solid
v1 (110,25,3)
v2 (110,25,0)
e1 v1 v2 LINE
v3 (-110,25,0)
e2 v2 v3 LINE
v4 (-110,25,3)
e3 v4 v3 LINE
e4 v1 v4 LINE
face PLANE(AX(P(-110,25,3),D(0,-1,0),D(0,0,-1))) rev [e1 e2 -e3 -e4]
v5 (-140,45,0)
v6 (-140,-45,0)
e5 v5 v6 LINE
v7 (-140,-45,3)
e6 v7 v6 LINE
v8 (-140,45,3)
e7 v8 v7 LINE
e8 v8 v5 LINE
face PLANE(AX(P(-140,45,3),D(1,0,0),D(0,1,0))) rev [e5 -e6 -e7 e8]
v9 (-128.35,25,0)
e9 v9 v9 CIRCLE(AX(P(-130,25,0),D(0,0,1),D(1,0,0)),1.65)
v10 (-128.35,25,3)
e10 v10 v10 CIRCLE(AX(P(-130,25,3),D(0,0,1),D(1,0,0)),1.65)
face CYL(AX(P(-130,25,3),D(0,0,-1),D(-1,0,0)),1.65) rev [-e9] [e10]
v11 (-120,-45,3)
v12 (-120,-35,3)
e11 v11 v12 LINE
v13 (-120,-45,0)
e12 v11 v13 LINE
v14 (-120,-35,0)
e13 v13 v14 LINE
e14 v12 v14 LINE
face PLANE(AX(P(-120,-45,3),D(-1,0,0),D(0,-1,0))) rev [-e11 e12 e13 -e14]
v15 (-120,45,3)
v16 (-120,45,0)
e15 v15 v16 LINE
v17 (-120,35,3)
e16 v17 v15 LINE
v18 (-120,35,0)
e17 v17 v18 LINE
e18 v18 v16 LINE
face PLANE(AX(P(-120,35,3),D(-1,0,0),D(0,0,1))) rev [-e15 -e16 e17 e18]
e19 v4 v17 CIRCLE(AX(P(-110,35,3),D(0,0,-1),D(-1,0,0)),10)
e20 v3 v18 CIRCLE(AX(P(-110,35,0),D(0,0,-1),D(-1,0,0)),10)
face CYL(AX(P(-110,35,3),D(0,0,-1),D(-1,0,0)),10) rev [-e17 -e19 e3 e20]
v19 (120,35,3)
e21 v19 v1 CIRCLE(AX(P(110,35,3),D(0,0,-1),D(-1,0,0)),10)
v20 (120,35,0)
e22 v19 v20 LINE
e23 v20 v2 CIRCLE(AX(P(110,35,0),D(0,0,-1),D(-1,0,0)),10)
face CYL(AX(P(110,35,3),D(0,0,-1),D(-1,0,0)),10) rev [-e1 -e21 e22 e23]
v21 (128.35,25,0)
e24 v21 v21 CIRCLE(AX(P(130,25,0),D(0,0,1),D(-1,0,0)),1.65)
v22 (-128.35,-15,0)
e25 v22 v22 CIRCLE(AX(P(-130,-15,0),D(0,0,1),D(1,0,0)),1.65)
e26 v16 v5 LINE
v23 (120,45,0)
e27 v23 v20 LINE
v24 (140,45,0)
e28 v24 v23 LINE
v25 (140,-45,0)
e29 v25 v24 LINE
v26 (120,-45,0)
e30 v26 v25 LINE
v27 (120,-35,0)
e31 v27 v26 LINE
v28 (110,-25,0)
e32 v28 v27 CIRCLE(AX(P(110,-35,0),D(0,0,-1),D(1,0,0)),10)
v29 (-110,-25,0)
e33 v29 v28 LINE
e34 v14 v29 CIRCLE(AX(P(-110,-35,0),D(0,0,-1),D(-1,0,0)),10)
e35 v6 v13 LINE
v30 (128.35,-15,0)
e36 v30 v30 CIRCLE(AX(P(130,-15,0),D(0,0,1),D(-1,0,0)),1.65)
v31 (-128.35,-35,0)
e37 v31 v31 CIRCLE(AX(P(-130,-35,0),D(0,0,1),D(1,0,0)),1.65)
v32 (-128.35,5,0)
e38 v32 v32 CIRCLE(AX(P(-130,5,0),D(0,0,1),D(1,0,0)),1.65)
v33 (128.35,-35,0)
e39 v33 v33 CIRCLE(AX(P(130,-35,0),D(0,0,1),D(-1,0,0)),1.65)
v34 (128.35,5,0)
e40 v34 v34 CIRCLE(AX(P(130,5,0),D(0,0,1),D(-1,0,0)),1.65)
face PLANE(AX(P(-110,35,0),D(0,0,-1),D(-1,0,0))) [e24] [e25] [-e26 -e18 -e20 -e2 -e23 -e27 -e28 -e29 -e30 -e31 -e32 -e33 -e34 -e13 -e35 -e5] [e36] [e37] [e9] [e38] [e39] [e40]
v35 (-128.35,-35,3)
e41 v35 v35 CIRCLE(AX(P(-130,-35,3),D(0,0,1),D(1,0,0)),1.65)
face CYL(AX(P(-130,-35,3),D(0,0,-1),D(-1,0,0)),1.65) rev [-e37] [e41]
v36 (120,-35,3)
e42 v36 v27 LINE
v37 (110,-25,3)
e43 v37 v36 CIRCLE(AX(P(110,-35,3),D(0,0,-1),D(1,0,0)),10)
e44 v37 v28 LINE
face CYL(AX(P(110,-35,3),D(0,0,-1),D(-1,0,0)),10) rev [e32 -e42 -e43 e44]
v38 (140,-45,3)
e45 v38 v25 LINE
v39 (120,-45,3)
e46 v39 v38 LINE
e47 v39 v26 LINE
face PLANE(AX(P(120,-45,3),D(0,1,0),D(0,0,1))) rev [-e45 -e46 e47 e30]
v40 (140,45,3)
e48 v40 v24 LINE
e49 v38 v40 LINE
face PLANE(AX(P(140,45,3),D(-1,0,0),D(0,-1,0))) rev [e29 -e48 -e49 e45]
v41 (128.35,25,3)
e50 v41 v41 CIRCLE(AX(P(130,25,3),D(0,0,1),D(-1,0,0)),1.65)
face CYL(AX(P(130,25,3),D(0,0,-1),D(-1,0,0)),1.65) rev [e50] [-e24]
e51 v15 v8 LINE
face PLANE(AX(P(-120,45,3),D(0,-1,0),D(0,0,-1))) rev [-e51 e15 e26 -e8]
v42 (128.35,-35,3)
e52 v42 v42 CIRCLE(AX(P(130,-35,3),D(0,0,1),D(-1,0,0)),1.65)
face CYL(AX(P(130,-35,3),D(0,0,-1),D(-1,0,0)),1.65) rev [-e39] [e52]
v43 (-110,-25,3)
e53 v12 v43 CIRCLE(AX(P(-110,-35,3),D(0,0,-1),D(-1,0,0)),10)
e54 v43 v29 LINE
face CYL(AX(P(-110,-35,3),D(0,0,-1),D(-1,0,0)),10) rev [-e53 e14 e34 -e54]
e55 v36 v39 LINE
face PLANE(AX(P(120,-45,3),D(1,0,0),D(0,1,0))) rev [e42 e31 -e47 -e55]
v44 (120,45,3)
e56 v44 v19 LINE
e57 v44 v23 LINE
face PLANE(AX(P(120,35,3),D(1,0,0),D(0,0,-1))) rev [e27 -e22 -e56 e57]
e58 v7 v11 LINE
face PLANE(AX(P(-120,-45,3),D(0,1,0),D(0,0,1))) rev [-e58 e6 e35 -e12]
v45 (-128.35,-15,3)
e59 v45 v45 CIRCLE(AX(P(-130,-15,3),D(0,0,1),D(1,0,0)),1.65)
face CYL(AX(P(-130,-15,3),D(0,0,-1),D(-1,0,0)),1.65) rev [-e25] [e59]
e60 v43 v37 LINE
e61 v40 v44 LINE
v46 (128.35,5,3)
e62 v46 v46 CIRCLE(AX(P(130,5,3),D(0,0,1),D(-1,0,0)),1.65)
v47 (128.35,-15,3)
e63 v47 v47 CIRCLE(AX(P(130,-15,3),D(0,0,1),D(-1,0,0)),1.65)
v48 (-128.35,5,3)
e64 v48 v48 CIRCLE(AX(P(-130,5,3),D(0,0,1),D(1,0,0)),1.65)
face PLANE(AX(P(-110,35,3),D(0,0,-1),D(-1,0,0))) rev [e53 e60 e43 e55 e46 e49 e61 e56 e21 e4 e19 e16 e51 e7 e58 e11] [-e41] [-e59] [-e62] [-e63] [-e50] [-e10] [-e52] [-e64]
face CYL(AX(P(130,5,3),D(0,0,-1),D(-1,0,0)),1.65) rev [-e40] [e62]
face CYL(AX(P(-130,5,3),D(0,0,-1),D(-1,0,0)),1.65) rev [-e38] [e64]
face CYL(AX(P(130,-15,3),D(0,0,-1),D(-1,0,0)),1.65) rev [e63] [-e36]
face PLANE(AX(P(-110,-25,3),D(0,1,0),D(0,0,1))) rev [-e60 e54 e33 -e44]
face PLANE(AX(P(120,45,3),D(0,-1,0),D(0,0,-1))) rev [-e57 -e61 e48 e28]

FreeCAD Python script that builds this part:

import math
import FreeCAD as App
import Part
import Sketcher

doc = App.newDocument("Part")
body = doc.addObject("PartDesign::Body", "Body")

# Sketch on XY plane
sketch1 = body.newObject("Sketcher::SketchObject", "Sketch")
sketch1.AttachmentSupport = (doc.getObject("XY_Plane"), [""])
sketch1.MapMode = "FlatFace"
sketch1.addGeometry([
    Part.LineSegment(App.Vector(110, 25, 0), App.Vector(-110, 25, 0)),  # 0
    Part.ArcOfCircle(Part.Circle(App.Vector(-110, 35, 0), App.Vector(0, 0, 1), 10), math.radians(180), math.radians(270)),  # 1
    Part.LineSegment(App.Vector(-120, 35, 0), App.Vector(-120, 45, 0)),  # 2
    Part.LineSegment(App.Vector(-120, 45, 0), App.Vector(-140, 45, 0)),  # 3
    Part.LineSegment(App.Vector(-140, 45, 0), App.Vector(-140, -45, 0)),  # 4
    Part.LineSegment(App.Vector(-140, -45, 0), App.Vector(-120, -45, 0)),  # 5
    Part.LineSegment(App.Vector(-120, -45, 0), App.Vector(-120, -35, 0)),  # 6
    Part.ArcOfCircle(Part.Circle(App.Vector(-110, -35, 0), App.Vector(0, 0, 1), 10), math.radians(90), math.radians(180)),  # 7
    Part.LineSegment(App.Vector(-110, -25, 0), App.Vector(110, -25, 0)),  # 8
    Part.ArcOfCircle(Part.Circle(App.Vector(110, -35, 0), App.Vector(0, 0, 1), 10), math.radians(0), math.radians(90)),  # 9
    Part.LineSegment(App.Vector(120, -35, 0), App.Vector(120, -45, 0)),  # 10
    Part.LineSegment(App.Vector(120, -45, 0), App.Vector(140, -45, 0)),  # 11
    Part.LineSegment(App.Vector(140, -45, 0), App.Vector(140, 45, 0)),  # 12
    Part.LineSegment(App.Vector(140, 45, 0), App.Vector(120, 45, 0)),  # 13
    Part.LineSegment(App.Vector(120, 45, 0), App.Vector(120, 35, 0)),  # 14
    Part.ArcOfCircle(Part.Circle(App.Vector(110, 35, 0), App.Vector(0, 0, 1), 10), math.radians(-90), math.radians(0)),  # 15
    Part.Circle(App.Vector(130, -35, 0), App.Vector(0, 0, 1), 1.65),  # 16
    Part.Circle(App.Vector(130, -15, 0), App.Vector(0, 0, 1), 1.65),  # 17
    Part.Circle(App.Vector(-130, -35, 0), App.Vector(0, 0, 1), 1.65),  # 18
    Part.Circle(App.Vector(-130, -15, 0), App.Vector(0, 0, 1), 1.65),  # 19
    Part.Circle(App.Vector(130, 5, 0), App.Vector(0, 0, 1), 1.65),  # 20
    Part.Circle(App.Vector(130, 25, 0), App.Vector(0, 0, 1), 1.65),  # 21
    Part.Circle(App.Vector(-130, 5, 0), App.Vector(0, 0, 1), 1.65),  # 22
    Part.Circle(App.Vector(-130, 25, 0), App.Vector(0, 0, 1), 1.65),  # 23
], False)
sketch1.addConstraint([
    Sketcher.Constraint("Tangent", 0, 2, 1, 2),
    Sketcher.Constraint("Tangent", 1, 1, 2, 1),
    Sketcher.Constraint("Coincident", 2, 2, 3, 1),
    Sketcher.Constraint("Coincident", 3, 2, 4, 1),
    Sketcher.Constraint("Coincident", 4, 2, 5, 1),
    Sketcher.Constraint("Coincident", 5, 2, 6, 1),
    Sketcher.Constraint("Tangent", 6, 2, 7, 2),
    Sketcher.Constraint("Tangent", 7, 1, 8, 1),
    Sketcher.Constraint("Tangent", 8, 2, 9, 2),
    Sketcher.Constraint("Tangent", 9, 1, 10, 1),
    Sketcher.Constraint("Coincident", 10, 2, 11, 1),
    Sketcher.Constraint("Coincident", 11, 2, 12, 1),
    Sketcher.Constraint("Coincident", 12, 2, 13, 1),
    Sketcher.Constraint("Coincident", 13, 2, 14, 1),
    Sketcher.Constraint("Tangent", 14, 2, 15, 2),
    Sketcher.Constraint("Tangent", 15, 1, 0, 1),
    Sketcher.Constraint("Horizontal", 0),
    Sketcher.Constraint("Vertical", 2),
    Sketcher.Constraint("Horizontal", 3),
    Sketcher.Constraint("Vertical", 4),
    Sketcher.Constraint("Horizontal", 5),
    Sketcher.Constraint("Vertical", 6),
    Sketcher.Constraint("Horizontal", 8),
    Sketcher.Constraint("Vertical", 10),
    Sketcher.Constraint("Horizontal", 11),
    Sketcher.Constraint("Vertical", 12),
    Sketcher.Constraint("Horizontal", 13),
    Sketcher.Constraint("Vertical", 14),
    Sketcher.Constraint("Equal", 1, 7),
    Sketcher.Constraint("Equal", 7, 9),
    Sketcher.Constraint("Equal", 9, 15),
    Sketcher.Constraint("Equal", 16, 17),
    Sketcher.Constraint("Equal", 17, 18),
    Sketcher.Constraint("Equal", 18, 19),
    Sketcher.Constraint("Equal", 19, 20),
    Sketcher.Constraint("Equal", 20, 21),
    Sketcher.Constraint("Equal", 21, 22),
    Sketcher.Constraint("Equal", 22, 23),
    Sketcher.Constraint("Symmetric", 1, 3, 9, 3, -1, 1),
    Sketcher.Constraint("Symmetric", 3, 2, 11, 2, -1, 1),
    Sketcher.Constraint("Symmetric", 5, 2, 13, 2, -1, 1),
    Sketcher.Constraint("Symmetric", 16, 3, 18, 3, -2),
    Sketcher.Constraint("Symmetric", 17, 3, 19, 3, -2),
    Sketcher.Constraint("Symmetric", 20, 3, 22, 3, -2),
    Sketcher.Constraint("Symmetric", 21, 3, 23, 3, -2),
    Sketcher.Constraint("Symmetric", 5, 2, 10, 2, -2),
    Sketcher.Constraint("Horizontal", 9, 3, 16, 3),
    Sketcher.Constraint("Horizontal", 23, 3, 0, 2),
    Sketcher.Constraint("Vertical", 16, 3, 17, 3),
    Sketcher.Constraint("Vertical", 17, 3, 20, 3),
    Sketcher.Constraint("Vertical", 20, 3, 21, 3),
    Sketcher.Constraint("Radius", 1, 10.0),
    Sketcher.Constraint("Diameter", 16, 3.3),
    Sketcher.Constraint("DistanceX", 0, 2, 0, 1, 220.0),
    Sketcher.Constraint("DistanceX", 3, 2, 3, 1, 20.0),
    Sketcher.Constraint("DistanceY", 2, 1, 2, 2, 10.0),
    Sketcher.Constraint("DistanceY", 4, 2, 4, 1, 90.0),
    Sketcher.Constraint("DistanceX", -1, 1, 16, 3, 130.0),
    Sketcher.Constraint("DistanceY", 17, 3, -1, 1, 15.0),
    Sketcher.Constraint("DistanceY", -1, 1, 20, 3, 5.0),
])
pad1 = body.newObject("PartDesign::Pad", "Pad")
pad1.Profile = sketch1
pad1.Length = 3

doc.recompute()
